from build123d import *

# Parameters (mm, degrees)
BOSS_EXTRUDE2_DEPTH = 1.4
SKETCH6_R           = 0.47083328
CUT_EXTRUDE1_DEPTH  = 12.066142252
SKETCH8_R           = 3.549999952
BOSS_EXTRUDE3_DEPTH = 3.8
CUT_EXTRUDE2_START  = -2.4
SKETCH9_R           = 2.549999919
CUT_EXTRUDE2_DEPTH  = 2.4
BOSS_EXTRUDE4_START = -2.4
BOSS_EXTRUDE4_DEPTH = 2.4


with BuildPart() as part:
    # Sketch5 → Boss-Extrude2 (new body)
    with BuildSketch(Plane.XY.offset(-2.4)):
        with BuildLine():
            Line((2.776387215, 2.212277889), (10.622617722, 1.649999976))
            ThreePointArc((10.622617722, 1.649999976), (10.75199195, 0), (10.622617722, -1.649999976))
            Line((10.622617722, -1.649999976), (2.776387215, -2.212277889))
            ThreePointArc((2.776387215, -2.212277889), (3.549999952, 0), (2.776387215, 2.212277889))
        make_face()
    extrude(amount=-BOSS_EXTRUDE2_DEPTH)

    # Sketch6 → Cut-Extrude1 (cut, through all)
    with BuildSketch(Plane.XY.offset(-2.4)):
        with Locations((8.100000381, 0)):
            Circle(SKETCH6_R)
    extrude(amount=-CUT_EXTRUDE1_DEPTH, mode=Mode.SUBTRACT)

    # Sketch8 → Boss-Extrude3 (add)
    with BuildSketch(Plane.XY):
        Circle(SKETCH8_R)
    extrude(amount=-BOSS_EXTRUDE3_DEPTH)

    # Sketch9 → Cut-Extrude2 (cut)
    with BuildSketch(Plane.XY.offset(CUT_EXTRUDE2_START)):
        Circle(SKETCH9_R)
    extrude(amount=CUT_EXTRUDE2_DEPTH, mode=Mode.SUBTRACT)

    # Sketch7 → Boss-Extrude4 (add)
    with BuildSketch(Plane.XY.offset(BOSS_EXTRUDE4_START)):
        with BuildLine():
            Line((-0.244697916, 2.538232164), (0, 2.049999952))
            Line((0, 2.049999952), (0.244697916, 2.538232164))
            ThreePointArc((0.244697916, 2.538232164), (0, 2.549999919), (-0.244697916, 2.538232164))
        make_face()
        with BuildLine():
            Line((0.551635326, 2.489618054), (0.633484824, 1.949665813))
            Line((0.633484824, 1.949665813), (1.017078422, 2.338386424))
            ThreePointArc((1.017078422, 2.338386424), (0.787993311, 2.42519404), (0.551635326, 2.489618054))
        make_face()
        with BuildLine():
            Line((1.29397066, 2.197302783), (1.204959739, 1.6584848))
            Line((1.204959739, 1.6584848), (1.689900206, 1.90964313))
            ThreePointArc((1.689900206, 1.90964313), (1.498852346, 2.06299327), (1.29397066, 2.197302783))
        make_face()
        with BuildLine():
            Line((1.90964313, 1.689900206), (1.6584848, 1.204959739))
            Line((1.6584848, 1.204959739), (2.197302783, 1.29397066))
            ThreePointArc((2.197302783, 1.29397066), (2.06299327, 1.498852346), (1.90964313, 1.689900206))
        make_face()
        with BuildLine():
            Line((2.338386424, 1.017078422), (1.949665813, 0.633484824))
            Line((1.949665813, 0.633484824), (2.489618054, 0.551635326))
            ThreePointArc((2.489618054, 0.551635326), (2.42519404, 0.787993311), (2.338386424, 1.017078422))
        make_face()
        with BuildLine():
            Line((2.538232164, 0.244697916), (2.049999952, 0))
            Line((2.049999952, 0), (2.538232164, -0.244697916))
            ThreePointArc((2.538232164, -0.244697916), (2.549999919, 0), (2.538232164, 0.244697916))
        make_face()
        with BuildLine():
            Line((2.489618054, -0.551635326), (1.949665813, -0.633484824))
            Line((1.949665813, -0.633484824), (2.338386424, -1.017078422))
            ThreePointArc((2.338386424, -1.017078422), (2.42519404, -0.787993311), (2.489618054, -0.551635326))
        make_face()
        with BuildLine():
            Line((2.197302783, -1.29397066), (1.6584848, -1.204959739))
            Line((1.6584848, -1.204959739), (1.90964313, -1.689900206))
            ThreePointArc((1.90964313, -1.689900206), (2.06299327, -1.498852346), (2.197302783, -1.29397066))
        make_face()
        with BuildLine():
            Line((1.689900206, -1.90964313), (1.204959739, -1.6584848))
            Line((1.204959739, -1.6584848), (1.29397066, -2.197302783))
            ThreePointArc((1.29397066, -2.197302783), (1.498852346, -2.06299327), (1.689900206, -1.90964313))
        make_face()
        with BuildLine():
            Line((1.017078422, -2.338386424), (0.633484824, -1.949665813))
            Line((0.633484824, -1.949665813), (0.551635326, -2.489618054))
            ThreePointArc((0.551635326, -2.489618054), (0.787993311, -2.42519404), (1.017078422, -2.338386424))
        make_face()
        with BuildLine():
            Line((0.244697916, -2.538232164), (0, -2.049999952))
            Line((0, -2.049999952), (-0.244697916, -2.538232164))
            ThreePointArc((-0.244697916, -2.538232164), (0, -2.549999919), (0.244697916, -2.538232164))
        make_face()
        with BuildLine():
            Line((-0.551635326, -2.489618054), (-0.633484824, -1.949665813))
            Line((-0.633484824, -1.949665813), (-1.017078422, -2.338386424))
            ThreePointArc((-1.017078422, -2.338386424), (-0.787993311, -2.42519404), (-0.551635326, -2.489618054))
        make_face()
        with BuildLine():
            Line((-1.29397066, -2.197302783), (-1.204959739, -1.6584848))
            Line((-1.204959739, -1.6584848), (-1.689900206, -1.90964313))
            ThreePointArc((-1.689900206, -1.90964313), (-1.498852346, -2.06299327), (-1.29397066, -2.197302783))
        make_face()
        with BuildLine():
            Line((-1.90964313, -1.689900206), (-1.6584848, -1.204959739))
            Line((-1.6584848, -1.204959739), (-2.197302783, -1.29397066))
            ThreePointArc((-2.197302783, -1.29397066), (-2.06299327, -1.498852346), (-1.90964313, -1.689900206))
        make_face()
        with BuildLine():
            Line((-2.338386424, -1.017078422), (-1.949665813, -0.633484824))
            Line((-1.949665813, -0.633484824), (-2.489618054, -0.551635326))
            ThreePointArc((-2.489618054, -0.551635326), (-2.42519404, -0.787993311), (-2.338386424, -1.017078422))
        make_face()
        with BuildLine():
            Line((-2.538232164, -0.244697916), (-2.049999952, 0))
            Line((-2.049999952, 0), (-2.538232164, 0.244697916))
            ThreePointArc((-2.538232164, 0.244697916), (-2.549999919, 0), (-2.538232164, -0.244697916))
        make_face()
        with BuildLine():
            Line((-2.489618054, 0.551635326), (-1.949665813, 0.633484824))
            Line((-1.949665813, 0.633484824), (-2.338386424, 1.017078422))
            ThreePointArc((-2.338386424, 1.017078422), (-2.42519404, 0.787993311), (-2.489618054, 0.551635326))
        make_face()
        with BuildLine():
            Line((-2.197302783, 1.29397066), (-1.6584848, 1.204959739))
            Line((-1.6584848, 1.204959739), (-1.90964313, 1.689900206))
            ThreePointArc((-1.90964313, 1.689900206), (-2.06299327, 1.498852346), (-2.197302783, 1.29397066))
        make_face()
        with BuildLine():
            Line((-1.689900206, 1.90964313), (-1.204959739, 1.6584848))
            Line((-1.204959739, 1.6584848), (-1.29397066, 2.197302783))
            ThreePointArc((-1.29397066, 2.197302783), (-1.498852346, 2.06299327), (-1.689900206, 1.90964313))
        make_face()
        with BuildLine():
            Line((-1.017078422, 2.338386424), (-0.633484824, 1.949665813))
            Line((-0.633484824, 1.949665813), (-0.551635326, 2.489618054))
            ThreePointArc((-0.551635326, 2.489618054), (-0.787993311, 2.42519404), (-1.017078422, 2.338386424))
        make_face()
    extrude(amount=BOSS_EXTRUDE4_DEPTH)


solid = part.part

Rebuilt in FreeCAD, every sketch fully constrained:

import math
import FreeCAD as App
import Part
import Sketcher

V = App.Vector
Q = App.Units.Quantity

doc = App.newDocument("Part")
body = doc.addObject("PartDesign::Body", "Body")

# Sketch on XY plane
sketch1 = doc.addObject("Sketcher::SketchObject", "Sketch")
body.addObject(sketch1)
sketch1.AttachmentSupport = (doc.XY_Plane, [""])
sketch1.MapMode = "FlatFace"
sketch1.AttachmentOffset = App.Placement(V(0, 0, -2.4), App.Rotation())
sketch1.addGeometry([
    Part.LineSegment(V(10.622618, 1.65, 0), V(2.776387, 2.212278, 0)),
    Part.ArcOfCircle(Part.Circle(V(0, 0, 0), V(0, 0, 1), 3.55), math.radians(-38.548502), math.radians(38.548502)),
    Part.LineSegment(V(2.776387, -2.212278, 0), V(10.622618, -1.65, 0)),
    Part.ArcOfCircle(Part.Circle(V(0.165503, 0, 0), V(0, 0, 1), 10.586489), math.radians(-8.966621), math.radians(8.966621)),
], False)
sketch1.addConstraint([
    Sketcher.Constraint("Coincident", 0, 2, 1, 2),
    Sketcher.Constraint("Coincident", 1, 1, 2, 1),
    Sketcher.Constraint("Coincident", 2, 2, 3, 1),
    Sketcher.Constraint("Coincident", 3, 2, 0, 1),
    Sketcher.Constraint("Coincident", 1, 3, -1, 1),
    Sketcher.Constraint("Symmetric", 2, 2, 3, 2, -1),
    Sketcher.Constraint("Vertical", 0, 2, 1, 1),
    Sketcher.Constraint("Radius", 1, Q("3.55 mm")),
    Sketcher.Constraint("DistanceY", 2, 2, 3, 2, Q("3.3 mm")),
    Sketcher.Constraint("Radius", 3, Q("10.586489 mm")),
    Sketcher.Constraint("Distance", 0, Q("7.866352 mm")),
    Sketcher.Constraint("DistanceX", 1, 1, 2, 2, Q("7.846231 mm")),
])
pad1 = doc.addObject("PartDesign::Pad", "Pad")
body.addObject(pad1)
pad1.Profile = sketch1
pad1.Length = 1.4
pad1.Reversed = True

# Sketch on XY plane
sketch2 = doc.addObject("Sketcher::SketchObject", "Sketch001")
body.addObject(sketch2)
sketch2.AttachmentSupport = (doc.XY_Plane, [""])
sketch2.MapMode = "FlatFace"
sketch2.AttachmentOffset = App.Placement(V(0, 0, -2.4), App.Rotation())
sketch2.addGeometry(Part.Circle(V(8.1, 0, 0), V(0, 0, 1), 0.470833), False)
sketch2.addConstraint([
    Sketcher.Constraint("PointOnObject", 0, 3, -1),
    Sketcher.Constraint("DistanceX", -1, 1, 0, 3, Q("8.1 mm")),
    Sketcher.Constraint("Diameter", 0, Q("0.941667 mm")),
])
pocket1 = doc.addObject("PartDesign::Pocket", "Pocket")
body.addObject(pocket1)
pocket1.Profile = sketch2
pocket1.Type = "ThroughAll"

# Sketch on XY plane
sketch3 = doc.addObject("Sketcher::SketchObject", "Sketch002")
body.addObject(sketch3)
sketch3.AttachmentSupport = (doc.XY_Plane, [""])
sketch3.MapMode = "FlatFace"
sketch3.addGeometry(Part.Circle(V(0, 0, 0), V(0, 0, 1), 3.55), False)
sketch3.addConstraint([
    Sketcher.Constraint("Coincident", 0, 3, -1, 1),
    Sketcher.Constraint("Diameter", 0, Q("7.1 mm")),
])
pad2 = doc.addObject("PartDesign::Pad", "Pad001")
body.addObject(pad2)
pad2.Profile = sketch3
pad2.Length = 3.8
pad2.Reversed = True

# Sketch on XY plane
sketch4 = doc.addObject("Sketcher::SketchObject", "Sketch003")
body.addObject(sketch4)
sketch4.AttachmentSupport = (doc.XY_Plane, [""])
sketch4.MapMode = "FlatFace"
sketch4.AttachmentOffset = App.Placement(V(0, 0, -2.4), App.Rotation())
sketch4.addGeometry(Part.Circle(V(0, 0, 0), V(0, 0, 1), 2.55), False)
sketch4.addConstraint([
    Sketcher.Constraint("Coincident", 0, 3, -1, 1),
    Sketcher.Constraint("Diameter", 0, Q("5.1 mm")),
])
pocket2 = doc.addObject("PartDesign::Pocket", "Pocket001")
body.addObject(pocket2)
pocket2.Profile = sketch4
pocket2.Length = 2.4
pocket2.Reversed = True

# Sketch on XY plane
sketch5 = doc.addObject("Sketcher::SketchObject", "Sketch004")
body.addObject(sketch5)
sketch5.AttachmentSupport = (doc.XY_Plane, [""])
sketch5.MapMode = "FlatFace"
sketch5.AttachmentOffset = App.Placement(V(0, 0, -2.4), App.Rotation())
sketch5.addGeometry([
    Part.LineSegment(V(-0.244698, 2.538232, 0), V(0, 2.05, 0)),  # 0
    Part.LineSegment(V(0, 2.05, 0), V(0.244698, 2.538232, 0)),  # 1
    Part.ArcOfCircle(Part.Circle(V(0, 0, 0), V(0, 0, 1), 2.55), math.radians(84.493426), math.radians(95.506574)),  # 2
    Part.LineSegment(V(0.551635, 2.489618, 0), V(0.633485, 1.949666, 0)),  # 3
    Part.LineSegment(V(0.633485, 1.949666, 0), V(1.017078, 2.338386, 0)),  # 4
    Part.ArcOfCircle(Part.Circle(V(0, 0, 0), V(0, 0, 1), 2.55), math.radians(66.493425), math.radians(77.506575)),  # 5
    Part.LineSegment(V(1.293971, 2.197303, 0), V(1.20496, 1.658485, 0)),  # 6
    Part.LineSegment(V(1.20496, 1.658485, 0), V(1.6899, 1.909643, 0)),  # 7
    Part.ArcOfCircle(Part.Circle(V(0, 0, 0), V(0, 0, 1), 2.55), math.radians(48.493426), math.radians(59.506574)),  # 8
    Part.LineSegment(V(1.909643, 1.6899, 0), V(1.658485, 1.20496, 0)),  # 9
    Part.LineSegment(V(1.658485, 1.20496, 0), V(2.197303, 1.293971, 0)),  # 10
    Part.ArcOfCircle(Part.Circle(V(0, 0, 0), V(0, 0, 1), 2.55), math.radians(30.493426), math.radians(41.506574)),  # 11
    Part.LineSegment(V(2.338386, 1.017078, 0), V(1.949666, 0.633485, 0)),  # 12
    Part.LineSegment(V(1.949666, 0.633485, 0), V(2.489618, 0.551635, 0)),  # 13
    Part.ArcOfCircle(Part.Circle(V(0, 0, 0), V(0, 0, 1), 2.55), math.radians(12.493425), math.radians(23.506575)),  # 14
    Part.LineSegment(V(2.538232, 0.244698, 0), V(2.05, 0, 0)),  # 15
    Part.LineSegment(V(2.05, 0, 0), V(2.538232, -0.244698, 0)),  # 16
    Part.ArcOfCircle(Part.Circle(V(0, 0, 0), V(0, 0, 1), 2.55), math.radians(-5.506574), math.radians(5.506574)),  # 17
    Part.LineSegment(V(2.489618, -0.551635, 0), V(1.949666, -0.633485, 0)),  # 18
    Part.LineSegment(V(1.949666, -0.633485, 0), V(2.338386, -1.017078, 0)),  # 19
    Part.ArcOfCircle(Part.Circle(V(0, 0, 0), V(0, 0, 1), 2.55), math.radians(-23.506575), math.radians(-12.493425)),  # 20
    Part.LineSegment(V(2.197303, -1.293971, 0), V(1.658485, -1.20496, 0)),  # 21
    Part.LineSegment(V(1.658485, -1.20496, 0), V(1.909643, -1.6899, 0)),  # 22
    Part.ArcOfCircle(Part.Circle(V(0, 0, 0), V(0, 0, 1), 2.55), math.radians(-41.506574), math.radians(-30.493426)),  # 23
    Part.LineSegment(V(1.6899, -1.909643, 0), V(1.20496, -1.658485, 0)),  # 24
    Part.LineSegment(V(1.20496, -1.658485, 0), V(1.293971, -2.197303, 0)),  # 25
    Part.ArcOfCircle(Part.Circle(V(0, 0, 0), V(0, 0, 1), 2.55), math.radians(-59.506574), math.radians(-48.493426)),  # 26
    Part.LineSegment(V(1.017078, -2.338386, 0), V(0.633485, -1.949666, 0)),  # 27
    Part.LineSegment(V(0.633485, -1.949666, 0), V(0.551635, -2.489618, 0)),  # 28
    Part.ArcOfCircle(Part.Circle(V(0, 0, 0), V(0, 0, 1), 2.55), math.radians(-77.506575), math.radians(-66.493425)),  # 29
    Part.LineSegment(V(0.244698, -2.538232, 0), V(0, -2.05, 0)),  # 30
    Part.LineSegment(V(0, -2.05, 0), V(-0.244698, -2.538232, 0)),  # 31
    Part.ArcOfCircle(Part.Circle(V(0, 0, 0), V(0, 0, 1), 2.55), math.radians(-95.506574), math.radians(-84.493426)),  # 32
    Part.LineSegment(V(-0.551635, -2.489618, 0), V(-0.633485, -1.949666, 0)),  # 33
    Part.LineSegment(V(-0.633485, -1.949666, 0), V(-1.017078, -2.338386, 0)),  # 34
    Part.ArcOfCircle(Part.Circle(V(0, 0, 0), V(0, 0, 1), 2.55), math.radians(-113.506575), math.radians(-102.493425)),  # 35
    Part.LineSegment(V(-1.293971, -2.197303, 0), V(-1.20496, -1.658485, 0)),  # 36
    Part.LineSegment(V(-1.20496, -1.658485, 0), V(-1.6899, -1.909643, 0)),  # 37
    Part.ArcOfCircle(Part.Circle(V(0, 0, 0), V(0, 0, 1), 2.55), math.radians(-131.506574), math.radians(-120.493426)),  # 38
    Part.LineSegment(V(-1.909643, -1.6899, 0), V(-1.658485, -1.20496, 0)),  # 39
    Part.LineSegment(V(-1.658485, -1.20496, 0), V(-2.197303, -1.293971, 0)),  # 40
    Part.ArcOfCircle(Part.Circle(V(0, 0, 0), V(0, 0, 1), 2.55), math.radians(-149.506574), math.radians(-138.493426)),  # 41
    Part.LineSegment(V(-2.338386, -1.017078, 0), V(-1.949666, -0.633485, 0)),  # 42
    Part.LineSegment(V(-1.949666, -0.633485, 0), V(-2.489618, -0.551635, 0)),  # 43
    Part.ArcOfCircle(Part.Circle(V(0, 0, 0), V(0, 0, 1), 2.55), math.radians(-167.506575), math.radians(-156.493425)),  # 44
    Part.LineSegment(V(-2.538232, -0.244698, 0), V(-2.05, 0, 0)),  # 45
    Part.LineSegment(V(-2.05, 0, 0), V(-2.538232, 0.244698, 0)),  # 46
    Part.ArcOfCircle(Part.Circle(V(0, 0, 0), V(0, 0, 1), 2.55), math.radians(174.493426), math.radians(185.506574)),  # 47
    Part.LineSegment(V(-2.489618, 0.551635, 0), V(-1.949666, 0.633485, 0)),  # 48
    Part.LineSegment(V(-1.949666, 0.633485, 0), V(-2.338386, 1.017078, 0)),  # 49
    Part.ArcOfCircle(Part.Circle(V(0, 0, 0), V(0, 0, 1), 2.55), math.radians(156.493425), math.radians(167.506575)),  # 50
    Part.LineSegment(V(-2.197303, 1.293971, 0), V(-1.658485, 1.20496, 0)),  # 51
    Part.LineSegment(V(-1.658485, 1.20496, 0), V(-1.909643, 1.6899, 0)),  # 52
    Part.ArcOfCircle(Part.Circle(V(0, 0, 0), V(0, 0, 1), 2.55), math.radians(138.493426), math.radians(149.506574)),  # 53
    Part.LineSegment(V(-1.6899, 1.909643, 0), V(-1.20496, 1.658485, 0)),  # 54
    Part.LineSegment(V(-1.20496, 1.658485, 0), V(-1.293971, 2.197303, 0)),  # 55
    Part.ArcOfCircle(Part.Circle(V(0, 0, 0), V(0, 0, 1), 2.55), math.radians(120.493426), math.radians(131.506574)),  # 56
    Part.LineSegment(V(-1.017078, 2.338386, 0), V(-0.633485, 1.949666, 0)),  # 57
    Part.LineSegment(V(-0.633485, 1.949666, 0), V(-0.551635, 2.489618, 0)),  # 58
    Part.ArcOfCircle(Part.Circle(V(0, 0, 0), V(0, 0, 1), 2.55), math.radians(102.493425), math.radians(113.506575)),  # 59
], False)
sketch5.addConstraint([
    Sketcher.Constraint("Coincident", 0, 2, 1, 1),
    Sketcher.Constraint("Coincident", 1, 2, 2, 1),
    Sketcher.Constraint("Coincident", 2, 2, 0, 1),
    Sketcher.Constraint("Coincident", 3, 2, 4, 1),
    Sketcher.Constraint("Coincident", 4, 2, 5, 1),
    Sketcher.Constraint("Coincident", 5, 2, 3, 1),
    Sketcher.Constraint("Coincident", 6, 2, 7, 1),
    Sketcher.Constraint("Coincident", 7, 2, 8, 1),
    Sketcher.Constraint("Coincident", 8, 2, 6, 1),
    Sketcher.Constraint("Coincident", 9, 2, 10, 1),
    Sketcher.Constraint("Coincident", 10, 2, 11, 1),
    Sketcher.Constraint("Coincident", 11, 2, 9, 1),
    Sketcher.Constraint("Coincident", 12, 2, 13, 1),
    Sketcher.Constraint("Coincident", 13, 2, 14, 1),
    Sketcher.Constraint("Coincident", 14, 2, 12, 1),
    Sketcher.Constraint("Coincident", 15, 2, 16, 1),
    Sketcher.Constraint("Coincident", 16, 2, 17, 1),
    Sketcher.Constraint("Coincident", 17, 2, 15, 1),
    Sketcher.Constraint("Coincident", 18, 2, 19, 1),
    Sketcher.Constraint("Coincident", 19, 2, 20, 1),
    Sketcher.Constraint("Coincident", 20, 2, 18, 1),
    Sketcher.Constraint("Coincident", 21, 2, 22, 1),
    Sketcher.Constraint("Coincident", 22, 2, 23, 1),
    Sketcher.Constraint("Coincident", 23, 2, 21, 1),
    Sketcher.Constraint("Coincident", 24, 2, 25, 1),
    Sketcher.Constraint("Coincident", 25, 2, 26, 1),
    Sketcher.Constraint("Coincident", 26, 2, 24, 1),
    Sketcher.Constraint("Coincident", 27, 2, 28, 1),
    Sketcher.Constraint("Coincident", 28, 2, 29, 1),
    Sketcher.Constraint("Coincident", 29, 2, 27, 1),
    Sketcher.Constraint("Coincident", 30, 2, 31, 1),
    Sketcher.Constraint("Coincident", 31, 2, 32, 1),
    Sketcher.Constraint("Coincident", 32, 2, 30, 1),
    Sketcher.Constraint("Coincident", 33, 2, 34, 1),
    Sketcher.Constraint("Coincident", 34, 2, 35, 1),
    Sketcher.Constraint("Coincident", 35, 2, 33, 1),
    Sketcher.Constraint("Coincident", 36, 2, 37, 1),
    Sketcher.Constraint("Coincident", 37, 2, 38, 1),
    Sketcher.Constraint("Coincident", 38, 2, 36, 1),
    Sketcher.Constraint("Coincident", 39, 2, 40, 1),
    Sketcher.Constraint("Coincident", 40, 2, 41, 1),
    Sketcher.Constraint("Coincident", 41, 2, 39, 1),
    Sketcher.Constraint("Coincident", 42, 2, 43, 1),
    Sketcher.Constraint("Coincident", 43, 2, 44, 1),
    Sketcher.Constraint("Coincident", 44, 2, 42, 1),
    Sketcher.Constraint("Coincident", 45, 2, 46, 1),
    Sketcher.Constraint("Coincident", 46, 2, 47, 1),
    Sketcher.Constraint("Coincident", 47, 2, 45, 1),
    Sketcher.Constraint("Coincident", 48, 2, 49, 1),
    Sketcher.Constraint("Coincident", 49, 2, 50, 1),
    Sketcher.Constraint("Coincident", 50, 2, 48, 1),
    Sketcher.Constraint("Coincident", 51, 2, 52, 1),
    Sketcher.Constraint("Coincident", 52, 2, 53, 1),
    Sketcher.Constraint("Coincident", 53, 2, 51, 1),
    Sketcher.Constraint("Coincident", 54, 2, 55, 1),
    Sketcher.Constraint("Coincident", 55, 2, 56, 1),
    Sketcher.Constraint("Coincident", 56, 2, 54, 1),
    Sketcher.Constraint("Coincident", 57, 2, 58, 1),
    Sketcher.Constraint("Coincident", 58, 2, 59, 1),
    Sketcher.Constraint("Coincident", 59, 2, 57, 1),
    Sketcher.Constraint("Coincident", 2, 3, -1, 1),
    Sketcher.Constraint("Coincident", 5, 3, -1, 1),
    Sketcher.Constraint("Coincident", 8, 3, -1, 1),
    Sketcher.Constraint("Coincident", 11, 3, -1, 1),
    Sketcher.Constraint("Coincident", 14, 3, -1, 1),
    Sketcher.Constraint("Coincident", 17, 3, -1, 1),
    Sketcher.Constraint("Coincident", 20, 3, -1, 1),
    Sketcher.Constraint("Coincident", 23, 3, -1, 1),
    Sketcher.Constraint("Coincident", 26, 3, -1, 1),
    Sketcher.Constraint("Coincident", 29, 3, -1, 1),
    Sketcher.Constraint("Coincident", 32, 3, -1, 1),
    Sketcher.Constraint("Coincident", 35, 3, -1, 1),
    Sketcher.Constraint("Coincident", 38, 3, -1, 1),
    Sketcher.Constraint("Coincident", 41, 3, -1, 1),
    Sketcher.Constraint("Coincident", 44, 3, -1, 1),
    Sketcher.Constraint("Coincident", 47, 3, -1, 1),
    Sketcher.Constraint("Coincident", 50, 3, -1, 1),
    Sketcher.Constraint("Coincident", 53, 3, -1, 1),
    Sketcher.Constraint("Coincident", 56, 3, -1, 1),
    Sketcher.Constraint("Coincident", 59, 3, -1, 1),
    Sketcher.Constraint("Equal", 2, 5),
    Sketcher.Constraint("Equal", 5, 8),
    Sketcher.Constraint("Equal", 8, 11),
    Sketcher.Constraint("Equal", 11, 14),
    Sketcher.Constraint("Equal", 14, 17),
    Sketcher.Constraint("Equal", 17, 20),
    Sketcher.Constraint("Equal", 20, 23),
    Sketcher.Constraint("Equal", 23, 26),
    Sketcher.Constraint("Equal", 26, 29),
    Sketcher.Constraint("Equal", 29, 32),
    Sketcher.Constraint("Equal", 32, 35),
    Sketcher.Constraint("Equal", 35, 38),
    Sketcher.Constraint("Equal", 38, 41),
    Sketcher.Constraint("Equal", 41, 44),
    Sketcher.Constraint("Equal", 44, 47),
    Sketcher.Constraint("Equal", 47, 50),
    Sketcher.Constraint("Equal", 50, 53),
    Sketcher.Constraint("Equal", 53, 56),
    Sketcher.Constraint("Equal", 56, 59),
    Sketcher.Constraint("Symmetric", 0, 2, 30, 2, -1, 1),
    Sketcher.Constraint("Symmetric", 3, 2, 33, 2, -1, 1),
    Sketcher.Constraint("Symmetric", 6, 2, 36, 2, -1, 1),
    Sketcher.Constraint("Symmetric", 9, 2, 39, 2, -1, 1),
    Sketcher.Constraint("Symmetric", 12, 2, 42, 2, -1, 1),
    Sketcher.Constraint("Symmetric", 15, 2, 45, 2, -1, 1),
    Sketcher.Constraint("Symmetric", 18, 2, 48, 2, -1, 1),
    Sketcher.Constraint("Symmetric", 21, 2, 51, 2, -1, 1),
    Sketcher.Constraint("Symmetric", 24, 2, 54, 2, -1, 1),
    Sketcher.Constraint("Symmetric", 27, 2, 57, 2, -1, 1),
    Sketcher.Constraint("Symmetric", 27, 2, 33, 2, -2),
    Sketcher.Constraint("Symmetric", 24, 2, 36, 2, -2),
    Sketcher.Constraint("Symmetric", 21, 2, 39, 2, -2),
    Sketcher.Constraint("Symmetric", 18, 2, 42, 2, -2),
    Sketcher.Constraint("PointOnObject", 0, 2, -2),
    Sketcher.Constraint("PointOnObject", 15, 2, -1),
    Sketcher.Constraint("Perpendicular", 0, 15),
    Sketcher.Constraint("Perpendicular", 1, 16),
    Sketcher.Constraint("Perpendicular", 3, 18),
    Sketcher.Constraint("Perpendicular", 4, 19),
    Sketcher.Constraint("Perpendicular", 6, 21),
    Sketcher.Constraint("Perpendicular", 7, 22),
    Sketcher.Constraint("Perpendicular", 9, 24),
    Sketcher.Constraint("Perpendicular", 10, 25),
    Sketcher.Constraint("Perpendicular", 12, 27),
    Sketcher.Constraint("Perpendicular", 13, 28),
    Sketcher.Constraint("Perpendicular", 15, 30),
    Sketcher.Constraint("Perpendicular", 16, 31),
    Sketcher.Constraint("Perpendicular", 18, 33),
    Sketcher.Constraint("Perpendicular", 19, 34),
    Sketcher.Constraint("Perpendicular", 21, 36),
    Sketcher.Constraint("Perpendicular", 22, 37),
    Sketcher.Constraint("Perpendicular", 24, 39),
    Sketcher.Constraint("Perpendicular", 25, 40),
    Sketcher.Constraint("Perpendicular", 27, 42),
    Sketcher.Constraint("Perpendicular", 28, 43),
    Sketcher.Constraint("Perpendicular", 30, 45),
    Sketcher.Constraint("Perpendicular", 31, 46),
    Sketcher.Constraint("Perpendicular", 33, 48),
    Sketcher.Constraint("Perpendicular", 34, 49),
    Sketcher.Constraint("Perpendicular", 36, 51),
    Sketcher.Constraint("Perpendicular", 37, 52),
    Sketcher.Constraint("Perpendicular", 39, 54),
    Sketcher.Constraint("Perpendicular", 40, 55),
    Sketcher.Constraint("Perpendicular", 42, 57),
    Sketcher.Constraint("Perpendicular", 43, 58),
    Sketcher.Constraint("Horizontal", 1, 2, 2, 2),
    Sketcher.Constraint("Horizontal", 29, 2, 34, 2),
    Sketcher.Constraint("Horizontal", 28, 2, 35, 2),
    Sketcher.Constraint("Horizontal", 26, 2, 37, 2),
    Sketcher.Constraint("Horizontal", 25, 2, 38, 2),
    Sketcher.Constraint("Equal", 1, 3),
    Sketcher.Constraint("Equal", 3, 4),
    Sketcher.Constraint("Equal", 4, 6),
    Sketcher.Constraint("Equal", 6, 7),
    Sketcher.Constraint("Equal", 7, 9),
    Sketcher.Constraint("Equal", 9, 10),
    Sketcher.Constraint("Equal", 10, 12),
    Sketcher.Constraint("Equal", 12, 13),
    Sketcher.Constraint("Equal", 13, 15),
    Sketcher.Constraint("Radius", 2, Q("2.55 mm")),
    Sketcher.Constraint("DistanceY", -1, 1, 0, 2, Q("2.05 mm")),
    Sketcher.Constraint("DistanceX", -1, 1, 7, 2, Q("1.6899 mm")),
    Sketcher.Constraint("Distance", 0, Q("0.546121 mm")),
    Sketcher.Constraint("DistanceX", -1, 1, 4, 2, Q("1.017078 mm")),
    Sketcher.Constraint("DistanceY", -1, 1, 5, 2, Q("2.489618 mm")),
    Sketcher.Constraint("DistanceX", -1, 1, 6, 2, Q("1.20496 mm")),
])
pad3 = doc.addObject("PartDesign::Pad", "Pad002")
body.addObject(pad3)
pad3.Profile = sketch5
pad3.Length = 2.4

doc.recompute()
